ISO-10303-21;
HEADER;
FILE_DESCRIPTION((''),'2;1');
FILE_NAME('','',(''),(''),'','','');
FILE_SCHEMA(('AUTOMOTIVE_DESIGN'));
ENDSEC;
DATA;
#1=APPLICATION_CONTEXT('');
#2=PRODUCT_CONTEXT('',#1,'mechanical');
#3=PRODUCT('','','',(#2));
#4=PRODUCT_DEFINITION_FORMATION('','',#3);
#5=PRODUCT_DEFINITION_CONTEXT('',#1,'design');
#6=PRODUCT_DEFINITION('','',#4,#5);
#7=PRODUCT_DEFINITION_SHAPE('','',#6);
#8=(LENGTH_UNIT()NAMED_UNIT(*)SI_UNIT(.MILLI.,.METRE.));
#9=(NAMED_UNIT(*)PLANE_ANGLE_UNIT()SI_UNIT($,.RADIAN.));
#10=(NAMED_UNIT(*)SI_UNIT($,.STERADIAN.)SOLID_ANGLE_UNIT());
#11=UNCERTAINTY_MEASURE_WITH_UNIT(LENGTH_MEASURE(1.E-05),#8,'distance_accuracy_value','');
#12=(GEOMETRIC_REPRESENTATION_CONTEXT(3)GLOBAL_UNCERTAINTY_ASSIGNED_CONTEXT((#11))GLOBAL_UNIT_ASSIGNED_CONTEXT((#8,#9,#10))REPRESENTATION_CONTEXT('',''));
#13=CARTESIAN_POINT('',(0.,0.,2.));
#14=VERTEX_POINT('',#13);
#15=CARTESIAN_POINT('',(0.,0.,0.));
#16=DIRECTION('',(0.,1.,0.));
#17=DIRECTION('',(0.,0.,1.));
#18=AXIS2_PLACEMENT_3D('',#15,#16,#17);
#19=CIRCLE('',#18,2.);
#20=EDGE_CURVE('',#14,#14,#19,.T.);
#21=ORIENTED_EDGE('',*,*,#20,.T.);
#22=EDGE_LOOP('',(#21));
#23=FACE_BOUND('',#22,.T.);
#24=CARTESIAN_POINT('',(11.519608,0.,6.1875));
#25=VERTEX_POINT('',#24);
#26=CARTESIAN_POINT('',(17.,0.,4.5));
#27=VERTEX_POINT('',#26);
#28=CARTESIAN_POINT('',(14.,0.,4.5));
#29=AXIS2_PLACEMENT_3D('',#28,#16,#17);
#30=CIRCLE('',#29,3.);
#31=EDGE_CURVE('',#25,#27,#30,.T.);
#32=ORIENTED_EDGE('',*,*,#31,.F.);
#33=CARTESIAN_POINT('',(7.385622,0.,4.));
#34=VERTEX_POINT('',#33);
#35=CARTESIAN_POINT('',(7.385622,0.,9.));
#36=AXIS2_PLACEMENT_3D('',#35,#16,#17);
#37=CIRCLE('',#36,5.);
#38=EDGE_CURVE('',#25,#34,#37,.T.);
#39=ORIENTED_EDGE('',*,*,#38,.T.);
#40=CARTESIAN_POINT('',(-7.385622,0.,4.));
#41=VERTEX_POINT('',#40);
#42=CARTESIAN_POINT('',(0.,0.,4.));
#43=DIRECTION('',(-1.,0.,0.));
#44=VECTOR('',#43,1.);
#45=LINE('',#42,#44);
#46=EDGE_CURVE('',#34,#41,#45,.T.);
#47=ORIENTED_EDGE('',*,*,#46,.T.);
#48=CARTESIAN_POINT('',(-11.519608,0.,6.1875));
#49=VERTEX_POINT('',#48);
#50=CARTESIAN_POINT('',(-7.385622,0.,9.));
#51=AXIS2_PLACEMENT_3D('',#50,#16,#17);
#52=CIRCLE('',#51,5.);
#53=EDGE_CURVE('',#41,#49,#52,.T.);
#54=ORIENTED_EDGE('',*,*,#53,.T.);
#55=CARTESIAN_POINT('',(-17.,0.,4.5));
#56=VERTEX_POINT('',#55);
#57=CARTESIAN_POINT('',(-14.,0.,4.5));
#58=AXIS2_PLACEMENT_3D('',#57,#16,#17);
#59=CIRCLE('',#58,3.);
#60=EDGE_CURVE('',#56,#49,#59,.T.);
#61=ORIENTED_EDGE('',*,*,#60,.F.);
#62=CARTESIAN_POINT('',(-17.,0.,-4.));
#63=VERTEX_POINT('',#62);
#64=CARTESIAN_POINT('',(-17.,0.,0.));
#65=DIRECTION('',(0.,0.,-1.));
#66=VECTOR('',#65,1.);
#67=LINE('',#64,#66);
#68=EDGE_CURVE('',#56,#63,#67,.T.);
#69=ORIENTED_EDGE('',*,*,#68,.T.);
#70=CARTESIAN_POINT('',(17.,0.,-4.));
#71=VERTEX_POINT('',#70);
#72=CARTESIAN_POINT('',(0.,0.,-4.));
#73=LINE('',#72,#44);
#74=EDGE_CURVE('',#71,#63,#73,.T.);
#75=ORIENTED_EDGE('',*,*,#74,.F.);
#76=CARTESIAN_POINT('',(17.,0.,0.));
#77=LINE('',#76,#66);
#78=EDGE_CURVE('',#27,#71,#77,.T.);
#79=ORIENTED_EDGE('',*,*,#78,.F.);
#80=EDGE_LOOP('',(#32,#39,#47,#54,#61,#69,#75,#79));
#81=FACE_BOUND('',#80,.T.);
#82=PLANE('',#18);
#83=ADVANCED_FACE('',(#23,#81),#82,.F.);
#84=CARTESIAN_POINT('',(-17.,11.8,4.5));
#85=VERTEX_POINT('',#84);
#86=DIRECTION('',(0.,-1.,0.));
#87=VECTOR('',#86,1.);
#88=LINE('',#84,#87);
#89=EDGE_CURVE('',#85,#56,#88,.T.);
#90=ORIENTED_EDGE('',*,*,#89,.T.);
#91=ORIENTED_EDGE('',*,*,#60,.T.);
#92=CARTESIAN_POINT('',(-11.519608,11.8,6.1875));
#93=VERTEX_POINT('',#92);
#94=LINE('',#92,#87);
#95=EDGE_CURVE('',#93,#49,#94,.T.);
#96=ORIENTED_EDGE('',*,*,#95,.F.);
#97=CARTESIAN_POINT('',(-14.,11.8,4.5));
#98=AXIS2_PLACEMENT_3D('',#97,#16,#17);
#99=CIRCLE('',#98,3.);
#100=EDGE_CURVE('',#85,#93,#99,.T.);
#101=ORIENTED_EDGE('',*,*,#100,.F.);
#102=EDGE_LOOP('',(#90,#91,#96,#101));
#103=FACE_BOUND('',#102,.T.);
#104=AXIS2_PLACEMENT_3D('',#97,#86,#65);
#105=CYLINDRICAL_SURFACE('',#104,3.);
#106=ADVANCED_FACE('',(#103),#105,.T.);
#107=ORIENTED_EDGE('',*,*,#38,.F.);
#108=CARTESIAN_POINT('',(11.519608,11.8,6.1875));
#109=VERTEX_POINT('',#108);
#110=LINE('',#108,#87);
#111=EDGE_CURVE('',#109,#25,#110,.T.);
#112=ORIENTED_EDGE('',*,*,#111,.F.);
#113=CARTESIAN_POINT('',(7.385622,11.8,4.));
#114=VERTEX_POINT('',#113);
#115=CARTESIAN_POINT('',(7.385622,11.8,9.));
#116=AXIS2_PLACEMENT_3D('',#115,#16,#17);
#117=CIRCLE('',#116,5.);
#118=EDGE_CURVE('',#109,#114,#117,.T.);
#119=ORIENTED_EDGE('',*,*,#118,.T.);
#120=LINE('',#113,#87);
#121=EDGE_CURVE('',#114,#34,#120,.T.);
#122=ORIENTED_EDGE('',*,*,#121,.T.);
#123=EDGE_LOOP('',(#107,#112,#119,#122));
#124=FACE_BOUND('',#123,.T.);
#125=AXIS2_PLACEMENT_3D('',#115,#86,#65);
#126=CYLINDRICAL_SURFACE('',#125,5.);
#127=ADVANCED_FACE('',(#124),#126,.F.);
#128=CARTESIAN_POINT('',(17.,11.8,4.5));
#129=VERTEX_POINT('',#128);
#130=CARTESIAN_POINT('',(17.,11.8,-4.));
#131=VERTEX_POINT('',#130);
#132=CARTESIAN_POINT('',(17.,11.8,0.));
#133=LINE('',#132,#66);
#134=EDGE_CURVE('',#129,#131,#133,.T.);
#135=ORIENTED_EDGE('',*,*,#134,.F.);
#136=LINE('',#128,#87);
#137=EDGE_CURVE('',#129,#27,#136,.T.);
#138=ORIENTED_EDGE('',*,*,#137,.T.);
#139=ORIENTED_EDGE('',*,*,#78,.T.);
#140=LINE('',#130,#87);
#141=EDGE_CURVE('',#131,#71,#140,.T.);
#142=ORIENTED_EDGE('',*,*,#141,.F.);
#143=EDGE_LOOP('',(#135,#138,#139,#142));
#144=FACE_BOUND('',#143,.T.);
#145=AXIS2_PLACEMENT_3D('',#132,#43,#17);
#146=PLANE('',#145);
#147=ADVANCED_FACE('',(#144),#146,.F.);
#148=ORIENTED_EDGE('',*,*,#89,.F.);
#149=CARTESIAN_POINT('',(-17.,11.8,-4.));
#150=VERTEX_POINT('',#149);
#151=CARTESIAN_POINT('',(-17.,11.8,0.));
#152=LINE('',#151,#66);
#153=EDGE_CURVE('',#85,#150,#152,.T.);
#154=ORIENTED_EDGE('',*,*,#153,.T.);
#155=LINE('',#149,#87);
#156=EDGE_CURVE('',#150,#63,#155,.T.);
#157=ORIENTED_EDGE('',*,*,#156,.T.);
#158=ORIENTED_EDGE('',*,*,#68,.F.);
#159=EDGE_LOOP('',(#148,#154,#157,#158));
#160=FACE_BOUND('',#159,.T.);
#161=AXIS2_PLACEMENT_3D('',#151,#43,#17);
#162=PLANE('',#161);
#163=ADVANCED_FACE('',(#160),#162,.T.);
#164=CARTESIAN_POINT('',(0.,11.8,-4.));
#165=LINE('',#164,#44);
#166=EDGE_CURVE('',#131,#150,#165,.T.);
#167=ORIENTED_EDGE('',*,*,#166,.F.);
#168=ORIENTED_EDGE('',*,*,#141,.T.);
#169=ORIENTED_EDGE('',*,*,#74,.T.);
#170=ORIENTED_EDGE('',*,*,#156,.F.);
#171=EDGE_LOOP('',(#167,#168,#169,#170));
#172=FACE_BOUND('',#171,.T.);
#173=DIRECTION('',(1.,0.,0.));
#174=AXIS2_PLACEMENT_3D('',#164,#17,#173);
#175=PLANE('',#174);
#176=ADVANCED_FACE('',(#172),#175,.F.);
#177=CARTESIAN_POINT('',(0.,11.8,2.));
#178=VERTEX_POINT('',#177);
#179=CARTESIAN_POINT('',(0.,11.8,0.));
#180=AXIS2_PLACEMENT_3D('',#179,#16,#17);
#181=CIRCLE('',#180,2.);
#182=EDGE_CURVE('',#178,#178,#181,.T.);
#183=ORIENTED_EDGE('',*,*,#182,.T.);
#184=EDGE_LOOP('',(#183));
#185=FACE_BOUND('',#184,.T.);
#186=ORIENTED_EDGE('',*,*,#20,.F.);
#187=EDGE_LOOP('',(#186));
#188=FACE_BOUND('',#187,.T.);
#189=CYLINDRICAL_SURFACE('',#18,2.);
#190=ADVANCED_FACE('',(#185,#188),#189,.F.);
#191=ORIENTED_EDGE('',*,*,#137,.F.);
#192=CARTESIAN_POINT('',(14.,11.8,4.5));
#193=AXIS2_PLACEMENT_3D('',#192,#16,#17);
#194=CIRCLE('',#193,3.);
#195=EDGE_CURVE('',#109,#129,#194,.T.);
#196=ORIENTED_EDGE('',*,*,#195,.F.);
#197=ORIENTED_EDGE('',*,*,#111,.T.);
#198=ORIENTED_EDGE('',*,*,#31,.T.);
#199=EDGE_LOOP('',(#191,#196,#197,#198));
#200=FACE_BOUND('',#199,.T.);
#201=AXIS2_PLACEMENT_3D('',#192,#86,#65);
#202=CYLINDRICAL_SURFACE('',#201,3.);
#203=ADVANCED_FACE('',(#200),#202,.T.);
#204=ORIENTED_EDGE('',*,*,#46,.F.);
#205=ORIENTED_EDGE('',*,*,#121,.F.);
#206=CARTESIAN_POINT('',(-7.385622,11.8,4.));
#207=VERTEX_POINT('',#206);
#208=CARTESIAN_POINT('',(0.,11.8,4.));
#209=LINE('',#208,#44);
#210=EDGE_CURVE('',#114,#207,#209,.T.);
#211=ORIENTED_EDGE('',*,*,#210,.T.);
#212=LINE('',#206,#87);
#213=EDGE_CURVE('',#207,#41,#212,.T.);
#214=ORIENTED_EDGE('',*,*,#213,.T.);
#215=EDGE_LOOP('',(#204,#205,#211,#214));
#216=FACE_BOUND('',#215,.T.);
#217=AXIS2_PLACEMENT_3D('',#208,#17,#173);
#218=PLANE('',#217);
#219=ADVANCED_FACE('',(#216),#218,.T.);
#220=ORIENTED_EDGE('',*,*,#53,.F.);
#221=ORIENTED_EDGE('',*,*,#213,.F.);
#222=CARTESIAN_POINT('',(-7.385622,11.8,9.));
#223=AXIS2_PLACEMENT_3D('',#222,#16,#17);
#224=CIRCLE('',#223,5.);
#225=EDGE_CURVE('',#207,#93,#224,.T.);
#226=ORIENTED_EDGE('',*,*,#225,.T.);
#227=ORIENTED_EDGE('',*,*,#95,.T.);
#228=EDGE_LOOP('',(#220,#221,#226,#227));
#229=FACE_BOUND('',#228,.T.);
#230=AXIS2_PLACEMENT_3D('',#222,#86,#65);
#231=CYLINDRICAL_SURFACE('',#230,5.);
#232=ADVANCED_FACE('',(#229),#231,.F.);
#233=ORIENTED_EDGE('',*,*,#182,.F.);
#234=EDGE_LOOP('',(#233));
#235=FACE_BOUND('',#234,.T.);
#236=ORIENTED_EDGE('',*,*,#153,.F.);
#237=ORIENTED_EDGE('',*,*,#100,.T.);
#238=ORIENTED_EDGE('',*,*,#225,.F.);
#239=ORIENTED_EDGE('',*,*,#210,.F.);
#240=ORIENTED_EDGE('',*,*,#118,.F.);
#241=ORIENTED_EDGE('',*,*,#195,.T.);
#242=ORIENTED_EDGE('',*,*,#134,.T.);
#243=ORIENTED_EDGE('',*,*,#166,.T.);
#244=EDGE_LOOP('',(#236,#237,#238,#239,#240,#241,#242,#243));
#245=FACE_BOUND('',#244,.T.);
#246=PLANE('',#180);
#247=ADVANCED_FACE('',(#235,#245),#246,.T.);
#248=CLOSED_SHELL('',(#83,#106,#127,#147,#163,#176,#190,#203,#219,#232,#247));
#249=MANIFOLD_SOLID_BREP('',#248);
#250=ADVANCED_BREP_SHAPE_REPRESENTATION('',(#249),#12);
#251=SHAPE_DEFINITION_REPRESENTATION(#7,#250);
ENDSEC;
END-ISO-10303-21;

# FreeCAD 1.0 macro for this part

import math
import FreeCAD as App
import Part
import Sketcher
Q = App.Units.Quantity

doc = App.newDocument("Part")
body = doc.addObject("PartDesign::Body", "Body")

# Sketch on XZ plane
sketch1 = body.newObject("Sketcher::SketchObject", "Sketch")
sketch1.AttachmentSupport = (doc.getObject("XZ_Plane"), [""])
sketch1.MapMode = "FlatFace"
sketch1.addGeometry(Part.LineSegment(App.Vector(-7.4, 4, 0), App.Vector(7.4, 4, 0)), False)
sketch1.addGeometry(Part.ArcOfCircle(Part.Circle(App.Vector(7.4, 9, 0), App.Vector(0, 0, 1), 5), math.radians(-90), math.radians(-34)), False)
sketch1.addGeometry(Part.ArcOfCircle(Part.Circle(App.Vector(14, 4.5, 0), App.Vector(0, 0, 1), 3), math.radians(0), math.radians(146)), False)
sketch1.addGeometry(Part.LineSegment(App.Vector(17, 4.5, 0), App.Vector(17, -4, 0)), False)
sketch1.addGeometry(Part.LineSegment(App.Vector(17, -4, 0), App.Vector(-17, -4, 0)), False)
sketch1.addGeometry(Part.LineSegment(App.Vector(-17, -4, 0), App.Vector(-17, 4.5, 0)), False)
sketch1.addGeometry(Part.ArcOfCircle(Part.Circle(App.Vector(-14, 4.5, 0), App.Vector(0, 0, 1), 3), math.radians(34), math.radians(180)), False)
sketch1.addGeometry(Part.ArcOfCircle(Part.Circle(App.Vector(-7.4, 9, 0), App.Vector(0, 0, 1), 5), math.radians(-146), math.radians(-90)), False)
sketch1.addConstraint(Sketcher.Constraint("Tangent", 0, 2, 1, 1))
sketch1.addConstraint(Sketcher.Constraint("Tangent", 1, 2, 2, 2))
sketch1.addConstraint(Sketcher.Constraint("Tangent", 2, 1, 3, 1))
sketch1.addConstraint(Sketcher.Constraint("Coincident", 3, 2, 4, 1))
sketch1.addConstraint(Sketcher.Constraint("Coincident", 4, 2, 5, 1))
sketch1.addConstraint(Sketcher.Constraint("Tangent", 5, 2, 6, 2))
sketch1.addConstraint(Sketcher.Constraint("Tangent", 6, 1, 7, 1))
sketch1.addConstraint(Sketcher.Constraint("Tangent", 7, 2, 0, 1))
sketch1.addConstraint(Sketcher.Constraint("Horizontal", 0))
sketch1.addConstraint(Sketcher.Constraint("Vertical", 3))
sketch1.addConstraint(Sketcher.Constraint("Horizontal", 4))
sketch1.addConstraint(Sketcher.Constraint("Vertical", 5))
sketch1.addConstraint(Sketcher.Constraint("Equal", 2, 6))
sketch1.addConstraint(Sketcher.Constraint("Equal", 1, 7))
sketch1.addConstraint(Sketcher.Constraint("Symmetric", 2, 3, 6, 3, -2))
sketch1.addConstraint(Sketcher.Constraint("Radius", 1, Q("5 mm")))
sketch1.addConstraint(Sketcher.Constraint("Radius", 2, Q("3 mm")))
sketch1.addConstraint(Sketcher.Constraint("DistanceX", 4, 2, 4, 1, Q("34 mm")))
sketch1.addConstraint(Sketcher.Constraint("DistanceY", 3, 2, 3, 1, Q("8.5 mm")))
sketch1.addConstraint(Sketcher.Constraint("DistanceY", -1, 1, 1, 3, Q("9 mm")))
sketch1.addConstraint(Sketcher.Constraint("DistanceY", 3, 2, -1, 1, Q("4 mm")))
pad1 = body.newObject("PartDesign::Pad", "Pad")
pad1.Profile = sketch1
pad1.Length = 11.8
pad1.Reversed = True

# Sketch on XZ plane
sketch2 = body.newObject("Sketcher::SketchObject", "Sketch001")
sketch2.AttachmentSupport = (doc.getObject("XZ_Plane"), [""])
sketch2.MapMode = "FlatFace"
sketch2.AttachmentOffset = App.Placement(App.Vector(0, 0, -11.8), App.Rotation())
sketch2.addGeometry(Part.Circle(App.Vector(0, 0, 0), App.Vector(0, 0, 1), 2), False)
sketch2.addConstraint(Sketcher.Constraint("Coincident", 0, 3, -1, 1))
sketch2.addConstraint(Sketcher.Constraint("Diameter", 0, Q("4 mm")))
pocket1 = body.newObject("PartDesign::Pocket", "Pocket")
pocket1.Profile = sketch2
pocket1.Type = "ThroughAll"
pocket1.Reversed = True

doc.recompute()
